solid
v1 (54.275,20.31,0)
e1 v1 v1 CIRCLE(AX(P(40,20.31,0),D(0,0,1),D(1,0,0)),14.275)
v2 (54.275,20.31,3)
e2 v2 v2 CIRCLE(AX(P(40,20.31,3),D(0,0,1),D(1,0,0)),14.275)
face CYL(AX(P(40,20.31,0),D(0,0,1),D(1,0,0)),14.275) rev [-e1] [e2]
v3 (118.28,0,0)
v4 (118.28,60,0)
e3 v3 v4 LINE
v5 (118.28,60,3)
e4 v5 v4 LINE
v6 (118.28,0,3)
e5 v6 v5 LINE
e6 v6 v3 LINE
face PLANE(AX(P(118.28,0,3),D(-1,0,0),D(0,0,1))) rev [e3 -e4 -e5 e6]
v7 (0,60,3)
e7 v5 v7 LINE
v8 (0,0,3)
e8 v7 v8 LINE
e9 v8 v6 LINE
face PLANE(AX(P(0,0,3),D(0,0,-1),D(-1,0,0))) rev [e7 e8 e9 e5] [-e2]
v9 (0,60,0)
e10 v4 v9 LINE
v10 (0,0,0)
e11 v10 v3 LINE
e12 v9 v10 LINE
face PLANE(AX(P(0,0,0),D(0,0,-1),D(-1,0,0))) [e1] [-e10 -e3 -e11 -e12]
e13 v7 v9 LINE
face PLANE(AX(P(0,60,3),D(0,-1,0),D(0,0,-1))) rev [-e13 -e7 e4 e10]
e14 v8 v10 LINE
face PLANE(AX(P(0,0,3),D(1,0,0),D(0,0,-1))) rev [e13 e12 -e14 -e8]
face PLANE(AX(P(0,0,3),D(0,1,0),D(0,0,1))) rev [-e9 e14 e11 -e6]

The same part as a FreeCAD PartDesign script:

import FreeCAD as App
import Part
import Sketcher
from FreeCAD import Vector
Q = App.Units.Quantity


def add_polygon(sketch, points):
    """Adds a closed chain of lines whose ends are joined by coincident constraints."""
    first, n = sketch.GeometryCount, len(points)
    for a, b in zip(points, points[1:] + points[:1]):
        sketch.addGeometry(Part.LineSegment(App.Vector(*a, 0), App.Vector(*b, 0)), False)
    for i in range(n):
        sketch.addConstraint(Sketcher.Constraint("Coincident", first + i, 2, first + (i + 1) % n, 1))

doc = App.newDocument("Part")
body = doc.addObject("PartDesign::Body", "Body")

# Sketch on XY plane
sketch1 = body.newObject("Sketcher::SketchObject", "Sketch")
sketch1.AttachmentSupport = (doc.getObject("XY_Plane"), [""])
sketch1.MapMode = "FlatFace"
add_polygon(sketch1, [(0, 60), (0, 0), (118, 0), (118, 60)])  # lines 0-3
sketch1.addConstraint(Sketcher.Constraint("Vertical", 0))
sketch1.addConstraint(Sketcher.Constraint("Horizontal", 1))
sketch1.addConstraint(Sketcher.Constraint("Vertical", 2))
sketch1.addConstraint(Sketcher.Constraint("Horizontal", 3))
sketch1.addConstraint(Sketcher.Constraint("Coincident", 0, 2, -1, 1))
sketch1.addConstraint(Sketcher.Constraint("DistanceY", 0, 2, 0, 1, Q("60 mm")))
sketch1.addConstraint(Sketcher.Constraint("DistanceX", 1, 1, 1, 2, Q("118.28 mm")))
pad1 = body.newObject("PartDesign::Pad", "Pad")
pad1.Profile = sketch1
pad1.Length = 3

# Sketch on XY plane
sketch2 = body.newObject("Sketcher::SketchObject", "Sketch001")
sketch2.AttachmentSupport = (doc.getObject("XY_Plane"), [""])
sketch2.MapMode = "FlatFace"
sketch2.AttachmentOffset = App.Placement(Vector(0, 0, 3), App.Rotation())
sketch2.addGeometry(Part.Circle(Vector(40, 20, 0), Vector(0, 0, 1), 14), False)
sketch2.addConstraint(Sketcher.Constraint("Diameter", 0, Q("28.55 mm")))
sketch2.addConstraint(Sketcher.Constraint("DistanceX", -1, 1, 0, 3, Q("40 mm")))
sketch2.addConstraint(Sketcher.Constraint("DistanceY", -1, 1, 0, 3, Q("20.31 mm")))
pocket1 = body.newObject("PartDesign::Pocket", "Pocket")
pocket1.Profile = sketch2
pocket1.Length = 3

doc.recompute()
